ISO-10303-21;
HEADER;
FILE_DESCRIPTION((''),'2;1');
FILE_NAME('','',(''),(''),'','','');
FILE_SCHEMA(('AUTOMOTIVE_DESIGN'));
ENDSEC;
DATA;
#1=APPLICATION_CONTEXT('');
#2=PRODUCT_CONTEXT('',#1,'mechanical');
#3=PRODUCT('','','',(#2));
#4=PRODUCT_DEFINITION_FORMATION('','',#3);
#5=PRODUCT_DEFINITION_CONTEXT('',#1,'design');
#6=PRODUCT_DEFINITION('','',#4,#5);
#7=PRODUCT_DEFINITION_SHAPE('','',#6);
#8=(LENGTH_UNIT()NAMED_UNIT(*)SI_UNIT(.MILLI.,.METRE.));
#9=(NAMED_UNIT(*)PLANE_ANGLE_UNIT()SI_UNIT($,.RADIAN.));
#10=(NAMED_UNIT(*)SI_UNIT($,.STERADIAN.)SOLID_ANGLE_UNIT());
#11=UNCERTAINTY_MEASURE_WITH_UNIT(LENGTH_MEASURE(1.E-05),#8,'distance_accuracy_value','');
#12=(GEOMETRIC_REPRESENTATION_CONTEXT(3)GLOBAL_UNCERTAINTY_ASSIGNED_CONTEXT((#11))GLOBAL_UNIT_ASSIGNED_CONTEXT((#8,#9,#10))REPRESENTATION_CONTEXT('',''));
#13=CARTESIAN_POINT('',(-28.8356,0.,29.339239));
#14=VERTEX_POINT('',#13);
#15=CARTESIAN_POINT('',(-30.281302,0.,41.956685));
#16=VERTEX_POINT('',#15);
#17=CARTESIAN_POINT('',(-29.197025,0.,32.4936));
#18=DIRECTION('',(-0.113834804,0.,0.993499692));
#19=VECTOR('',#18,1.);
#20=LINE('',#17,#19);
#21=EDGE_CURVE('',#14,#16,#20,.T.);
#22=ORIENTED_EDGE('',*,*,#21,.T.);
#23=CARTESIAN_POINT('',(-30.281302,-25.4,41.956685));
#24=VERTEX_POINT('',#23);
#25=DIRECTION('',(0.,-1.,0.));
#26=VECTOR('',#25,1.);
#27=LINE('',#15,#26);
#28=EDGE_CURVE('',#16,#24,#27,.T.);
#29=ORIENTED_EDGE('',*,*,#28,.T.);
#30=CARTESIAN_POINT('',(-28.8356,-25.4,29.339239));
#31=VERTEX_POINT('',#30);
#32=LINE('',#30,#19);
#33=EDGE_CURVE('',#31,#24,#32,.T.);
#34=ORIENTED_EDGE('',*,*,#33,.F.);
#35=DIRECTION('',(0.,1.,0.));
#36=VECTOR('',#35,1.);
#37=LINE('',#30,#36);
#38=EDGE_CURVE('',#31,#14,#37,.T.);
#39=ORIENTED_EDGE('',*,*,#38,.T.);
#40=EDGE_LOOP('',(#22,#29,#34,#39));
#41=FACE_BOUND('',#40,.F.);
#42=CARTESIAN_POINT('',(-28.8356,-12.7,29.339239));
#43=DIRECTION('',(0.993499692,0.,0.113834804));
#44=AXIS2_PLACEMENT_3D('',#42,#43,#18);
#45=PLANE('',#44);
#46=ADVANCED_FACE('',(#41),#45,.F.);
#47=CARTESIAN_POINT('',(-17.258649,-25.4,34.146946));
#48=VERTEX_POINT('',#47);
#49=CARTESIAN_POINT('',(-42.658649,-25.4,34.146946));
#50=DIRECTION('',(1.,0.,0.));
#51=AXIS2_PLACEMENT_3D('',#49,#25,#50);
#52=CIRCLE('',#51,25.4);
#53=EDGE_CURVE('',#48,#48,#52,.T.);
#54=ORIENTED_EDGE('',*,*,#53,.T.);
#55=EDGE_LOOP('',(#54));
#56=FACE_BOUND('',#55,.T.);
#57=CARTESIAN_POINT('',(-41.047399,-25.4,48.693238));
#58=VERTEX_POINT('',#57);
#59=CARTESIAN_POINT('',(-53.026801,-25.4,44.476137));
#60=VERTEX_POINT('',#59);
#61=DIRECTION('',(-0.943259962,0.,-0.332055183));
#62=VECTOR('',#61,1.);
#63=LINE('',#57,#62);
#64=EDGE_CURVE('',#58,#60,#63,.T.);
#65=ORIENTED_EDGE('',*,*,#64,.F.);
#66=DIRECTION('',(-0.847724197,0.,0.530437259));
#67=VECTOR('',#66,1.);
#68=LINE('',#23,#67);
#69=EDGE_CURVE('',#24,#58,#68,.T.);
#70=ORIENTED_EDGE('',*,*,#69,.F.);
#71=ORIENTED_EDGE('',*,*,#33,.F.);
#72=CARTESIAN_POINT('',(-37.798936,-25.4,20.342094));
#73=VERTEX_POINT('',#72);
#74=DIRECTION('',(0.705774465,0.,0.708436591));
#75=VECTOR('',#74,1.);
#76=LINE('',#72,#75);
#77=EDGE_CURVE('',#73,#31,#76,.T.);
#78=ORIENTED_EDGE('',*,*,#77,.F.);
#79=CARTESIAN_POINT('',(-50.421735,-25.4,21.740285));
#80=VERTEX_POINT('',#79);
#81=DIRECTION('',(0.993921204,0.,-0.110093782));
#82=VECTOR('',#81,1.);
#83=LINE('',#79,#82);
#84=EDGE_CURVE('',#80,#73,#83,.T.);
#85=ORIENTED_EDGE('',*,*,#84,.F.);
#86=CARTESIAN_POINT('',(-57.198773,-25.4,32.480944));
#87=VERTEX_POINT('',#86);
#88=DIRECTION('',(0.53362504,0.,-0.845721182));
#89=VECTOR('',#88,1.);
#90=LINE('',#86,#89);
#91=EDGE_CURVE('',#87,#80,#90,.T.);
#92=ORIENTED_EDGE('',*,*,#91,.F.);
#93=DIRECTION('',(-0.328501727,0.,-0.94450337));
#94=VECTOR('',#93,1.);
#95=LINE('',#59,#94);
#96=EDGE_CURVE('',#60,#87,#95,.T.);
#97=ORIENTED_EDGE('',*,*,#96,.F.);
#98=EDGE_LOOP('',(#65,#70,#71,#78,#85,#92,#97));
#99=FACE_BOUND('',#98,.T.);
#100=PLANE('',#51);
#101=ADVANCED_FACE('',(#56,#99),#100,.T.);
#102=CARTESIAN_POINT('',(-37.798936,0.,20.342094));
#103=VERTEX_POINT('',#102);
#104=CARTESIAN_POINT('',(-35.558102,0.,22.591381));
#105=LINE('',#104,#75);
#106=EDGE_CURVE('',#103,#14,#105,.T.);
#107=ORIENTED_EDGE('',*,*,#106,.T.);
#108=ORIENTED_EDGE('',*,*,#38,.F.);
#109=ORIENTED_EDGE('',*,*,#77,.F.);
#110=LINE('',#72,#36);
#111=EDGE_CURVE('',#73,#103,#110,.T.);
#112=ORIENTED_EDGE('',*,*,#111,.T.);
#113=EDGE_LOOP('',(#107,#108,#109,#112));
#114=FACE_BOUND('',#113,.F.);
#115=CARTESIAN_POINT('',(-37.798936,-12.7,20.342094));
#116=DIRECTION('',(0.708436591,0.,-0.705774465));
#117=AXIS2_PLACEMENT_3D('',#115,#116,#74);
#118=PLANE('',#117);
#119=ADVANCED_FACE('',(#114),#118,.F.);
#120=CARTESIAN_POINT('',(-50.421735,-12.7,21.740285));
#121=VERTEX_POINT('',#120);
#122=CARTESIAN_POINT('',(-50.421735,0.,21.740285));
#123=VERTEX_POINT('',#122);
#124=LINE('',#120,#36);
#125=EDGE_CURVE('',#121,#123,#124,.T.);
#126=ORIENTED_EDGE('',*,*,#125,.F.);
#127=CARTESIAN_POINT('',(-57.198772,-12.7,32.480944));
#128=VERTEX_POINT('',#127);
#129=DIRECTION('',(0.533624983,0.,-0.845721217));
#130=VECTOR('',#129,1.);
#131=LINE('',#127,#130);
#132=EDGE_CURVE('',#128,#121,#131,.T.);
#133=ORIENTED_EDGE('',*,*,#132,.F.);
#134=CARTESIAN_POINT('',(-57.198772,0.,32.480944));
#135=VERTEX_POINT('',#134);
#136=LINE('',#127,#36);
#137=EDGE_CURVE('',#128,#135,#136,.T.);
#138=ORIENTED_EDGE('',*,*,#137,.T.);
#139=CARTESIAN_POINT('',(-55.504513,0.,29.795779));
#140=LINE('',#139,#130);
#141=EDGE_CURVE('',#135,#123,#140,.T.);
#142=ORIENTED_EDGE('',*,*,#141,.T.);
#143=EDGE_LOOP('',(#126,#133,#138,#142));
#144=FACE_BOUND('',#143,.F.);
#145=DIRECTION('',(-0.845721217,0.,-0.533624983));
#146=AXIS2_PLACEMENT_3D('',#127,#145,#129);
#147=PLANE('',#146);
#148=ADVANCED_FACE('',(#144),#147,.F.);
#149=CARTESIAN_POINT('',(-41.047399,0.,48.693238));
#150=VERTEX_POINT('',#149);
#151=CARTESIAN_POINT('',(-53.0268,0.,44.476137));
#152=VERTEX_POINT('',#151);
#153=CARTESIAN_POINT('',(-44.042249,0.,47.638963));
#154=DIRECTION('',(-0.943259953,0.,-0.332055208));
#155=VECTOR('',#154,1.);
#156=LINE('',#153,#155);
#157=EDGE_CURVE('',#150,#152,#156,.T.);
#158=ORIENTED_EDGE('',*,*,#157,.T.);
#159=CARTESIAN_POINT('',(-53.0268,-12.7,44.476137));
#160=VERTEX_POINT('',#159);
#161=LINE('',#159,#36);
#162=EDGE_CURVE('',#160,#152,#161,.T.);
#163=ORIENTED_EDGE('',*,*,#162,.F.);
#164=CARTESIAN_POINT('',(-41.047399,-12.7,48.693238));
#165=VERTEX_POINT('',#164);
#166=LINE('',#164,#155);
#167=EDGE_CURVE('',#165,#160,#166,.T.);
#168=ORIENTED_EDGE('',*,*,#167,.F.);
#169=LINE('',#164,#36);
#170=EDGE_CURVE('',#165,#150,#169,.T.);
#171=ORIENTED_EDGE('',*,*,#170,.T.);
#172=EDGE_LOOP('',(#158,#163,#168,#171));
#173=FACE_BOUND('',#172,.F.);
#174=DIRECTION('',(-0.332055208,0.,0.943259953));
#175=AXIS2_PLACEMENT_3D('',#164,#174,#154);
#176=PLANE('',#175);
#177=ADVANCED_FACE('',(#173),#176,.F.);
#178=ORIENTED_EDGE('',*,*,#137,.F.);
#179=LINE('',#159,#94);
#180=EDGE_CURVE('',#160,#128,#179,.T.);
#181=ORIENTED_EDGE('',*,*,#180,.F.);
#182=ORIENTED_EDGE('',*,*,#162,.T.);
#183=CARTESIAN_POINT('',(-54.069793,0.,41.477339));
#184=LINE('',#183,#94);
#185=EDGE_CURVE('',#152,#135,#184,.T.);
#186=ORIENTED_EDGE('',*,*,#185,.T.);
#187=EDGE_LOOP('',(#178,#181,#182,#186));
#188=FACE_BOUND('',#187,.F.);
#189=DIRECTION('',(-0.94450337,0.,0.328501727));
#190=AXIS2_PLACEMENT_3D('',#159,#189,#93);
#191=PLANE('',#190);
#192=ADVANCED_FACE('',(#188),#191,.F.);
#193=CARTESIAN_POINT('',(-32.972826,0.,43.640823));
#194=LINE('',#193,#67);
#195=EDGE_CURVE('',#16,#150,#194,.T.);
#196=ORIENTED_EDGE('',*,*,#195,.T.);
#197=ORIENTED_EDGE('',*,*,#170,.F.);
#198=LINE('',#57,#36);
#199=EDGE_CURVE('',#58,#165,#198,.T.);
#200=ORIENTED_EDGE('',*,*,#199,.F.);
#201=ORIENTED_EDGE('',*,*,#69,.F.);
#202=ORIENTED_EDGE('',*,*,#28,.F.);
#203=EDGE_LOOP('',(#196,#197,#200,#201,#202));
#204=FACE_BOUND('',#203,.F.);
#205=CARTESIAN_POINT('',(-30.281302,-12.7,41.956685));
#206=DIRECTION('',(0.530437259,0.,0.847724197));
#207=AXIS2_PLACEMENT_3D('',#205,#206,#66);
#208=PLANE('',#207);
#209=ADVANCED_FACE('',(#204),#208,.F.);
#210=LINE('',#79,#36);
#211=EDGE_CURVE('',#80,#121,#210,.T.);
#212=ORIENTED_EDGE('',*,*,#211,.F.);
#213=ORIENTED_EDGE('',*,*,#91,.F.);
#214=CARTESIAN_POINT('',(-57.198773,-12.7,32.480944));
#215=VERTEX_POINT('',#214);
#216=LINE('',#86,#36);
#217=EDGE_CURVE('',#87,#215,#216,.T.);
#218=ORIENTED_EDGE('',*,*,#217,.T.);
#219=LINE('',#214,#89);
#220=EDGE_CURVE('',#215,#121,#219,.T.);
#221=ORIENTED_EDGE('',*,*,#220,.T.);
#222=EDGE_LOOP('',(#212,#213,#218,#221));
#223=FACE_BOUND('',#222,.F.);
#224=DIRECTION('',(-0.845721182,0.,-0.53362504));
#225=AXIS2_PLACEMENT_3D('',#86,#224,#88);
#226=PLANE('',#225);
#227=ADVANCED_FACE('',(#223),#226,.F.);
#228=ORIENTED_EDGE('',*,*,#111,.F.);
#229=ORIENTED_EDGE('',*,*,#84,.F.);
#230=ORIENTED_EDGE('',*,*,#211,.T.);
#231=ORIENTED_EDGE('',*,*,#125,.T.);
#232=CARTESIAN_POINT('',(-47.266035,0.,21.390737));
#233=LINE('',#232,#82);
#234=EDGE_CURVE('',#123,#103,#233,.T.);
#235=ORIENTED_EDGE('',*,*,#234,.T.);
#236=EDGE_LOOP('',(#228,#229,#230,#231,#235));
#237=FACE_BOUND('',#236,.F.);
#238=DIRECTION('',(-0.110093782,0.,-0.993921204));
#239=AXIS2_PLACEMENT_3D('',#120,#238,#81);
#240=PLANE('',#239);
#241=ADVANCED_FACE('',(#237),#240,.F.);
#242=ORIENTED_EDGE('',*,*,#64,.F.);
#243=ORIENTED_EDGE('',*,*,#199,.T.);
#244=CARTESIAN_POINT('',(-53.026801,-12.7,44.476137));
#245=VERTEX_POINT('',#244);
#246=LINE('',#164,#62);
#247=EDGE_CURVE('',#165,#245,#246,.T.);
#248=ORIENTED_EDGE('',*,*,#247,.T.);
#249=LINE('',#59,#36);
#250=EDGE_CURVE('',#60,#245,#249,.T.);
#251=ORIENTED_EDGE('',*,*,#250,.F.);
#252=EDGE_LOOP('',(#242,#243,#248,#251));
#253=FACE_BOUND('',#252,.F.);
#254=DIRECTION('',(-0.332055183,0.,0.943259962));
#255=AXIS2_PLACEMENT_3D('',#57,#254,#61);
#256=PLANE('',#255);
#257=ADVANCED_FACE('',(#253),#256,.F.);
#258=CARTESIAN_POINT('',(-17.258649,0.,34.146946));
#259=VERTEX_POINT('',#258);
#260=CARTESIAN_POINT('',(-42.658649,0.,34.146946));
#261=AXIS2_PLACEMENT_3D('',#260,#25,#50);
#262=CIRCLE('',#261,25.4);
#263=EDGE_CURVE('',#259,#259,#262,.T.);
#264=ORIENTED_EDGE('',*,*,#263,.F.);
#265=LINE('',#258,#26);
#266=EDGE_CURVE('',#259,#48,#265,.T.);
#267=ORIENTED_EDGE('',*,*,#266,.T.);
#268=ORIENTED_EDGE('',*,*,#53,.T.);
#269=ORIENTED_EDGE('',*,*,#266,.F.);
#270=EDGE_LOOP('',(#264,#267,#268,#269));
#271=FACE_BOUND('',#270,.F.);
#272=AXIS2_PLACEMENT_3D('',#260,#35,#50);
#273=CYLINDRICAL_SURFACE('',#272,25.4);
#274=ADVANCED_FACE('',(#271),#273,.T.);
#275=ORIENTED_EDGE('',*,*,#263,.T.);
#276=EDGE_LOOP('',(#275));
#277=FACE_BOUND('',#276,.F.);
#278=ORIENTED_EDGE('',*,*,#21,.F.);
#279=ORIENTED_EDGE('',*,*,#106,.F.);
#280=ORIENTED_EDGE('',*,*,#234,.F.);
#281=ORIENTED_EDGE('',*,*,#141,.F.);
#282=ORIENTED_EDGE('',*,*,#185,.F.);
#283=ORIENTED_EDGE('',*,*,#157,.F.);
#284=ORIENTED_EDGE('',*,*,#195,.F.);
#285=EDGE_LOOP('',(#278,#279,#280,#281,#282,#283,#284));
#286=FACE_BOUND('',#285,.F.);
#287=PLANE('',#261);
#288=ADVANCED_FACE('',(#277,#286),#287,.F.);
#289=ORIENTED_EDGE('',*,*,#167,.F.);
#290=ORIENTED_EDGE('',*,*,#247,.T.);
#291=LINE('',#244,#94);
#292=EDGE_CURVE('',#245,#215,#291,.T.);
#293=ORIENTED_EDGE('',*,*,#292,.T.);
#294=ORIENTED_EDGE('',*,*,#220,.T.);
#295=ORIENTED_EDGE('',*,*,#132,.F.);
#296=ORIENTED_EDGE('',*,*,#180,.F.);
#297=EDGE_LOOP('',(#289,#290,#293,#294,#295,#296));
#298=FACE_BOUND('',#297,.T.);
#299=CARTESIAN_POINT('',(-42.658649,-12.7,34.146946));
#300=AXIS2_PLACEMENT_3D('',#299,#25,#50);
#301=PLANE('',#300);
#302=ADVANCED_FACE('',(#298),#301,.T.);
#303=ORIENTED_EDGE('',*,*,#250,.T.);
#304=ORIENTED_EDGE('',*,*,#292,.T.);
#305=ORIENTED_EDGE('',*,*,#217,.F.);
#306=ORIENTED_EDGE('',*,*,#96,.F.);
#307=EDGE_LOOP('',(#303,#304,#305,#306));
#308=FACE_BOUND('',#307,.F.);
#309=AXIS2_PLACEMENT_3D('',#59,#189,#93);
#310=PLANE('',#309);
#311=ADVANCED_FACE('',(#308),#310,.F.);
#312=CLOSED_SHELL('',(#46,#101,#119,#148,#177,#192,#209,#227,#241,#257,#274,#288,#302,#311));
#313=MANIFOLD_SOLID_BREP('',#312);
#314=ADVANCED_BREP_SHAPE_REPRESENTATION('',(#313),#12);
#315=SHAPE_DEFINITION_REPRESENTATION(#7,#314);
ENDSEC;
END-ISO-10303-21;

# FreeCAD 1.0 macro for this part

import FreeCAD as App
import Part
import Sketcher
from FreeCAD import Vector
Q = App.Units.Quantity


def add_polygon(sketch, points):
    """Adds a closed chain of lines whose ends are joined by coincident constraints."""
    first, n = sketch.GeometryCount, len(points)
    for a, b in zip(points, points[1:] + points[:1]):
        sketch.addGeometry(Part.LineSegment(App.Vector(*a, 0), App.Vector(*b, 0)), False)
    for i in range(n):
        sketch.addConstraint(Sketcher.Constraint("Coincident", first + i, 2, first + (i + 1) % n, 1))

doc = App.newDocument("Part")
body = doc.addObject("PartDesign::Body", "Body")

# Sketch on XZ plane
sketch1 = doc.addObject("Sketcher::SketchObject", "Sketch")
body.addObject(sketch1)
sketch1.AttachmentSupport = (doc.XZ_Plane, [""])
sketch1.MapMode = "FlatFace"
sketch1.addGeometry(Part.Circle(Vector(-43, 34, 0), Vector(0, 0, 1), 25), False)
sketch1.addConstraint([
    Sketcher.Constraint("Diameter", 0, Q("2 in")),
    Sketcher.Constraint("DistanceX", 0, 3, -1, 1, Q("42.658649 mm")),
    Sketcher.Constraint("DistanceY", -1, 1, 0, 3, Q("34.146946 mm")),
])
pad1 = doc.addObject("PartDesign::Pad", "Pad")
body.addObject(pad1)
pad1.Profile = sketch1
pad1.Length = Q("1 in")

# Sketch on XZ plane
sketch2 = doc.addObject("Sketcher::SketchObject", "Sketch001")
body.addObject(sketch2)
sketch2.AttachmentSupport = (doc.XZ_Plane, [""])
sketch2.MapMode = "FlatFace"
sketch2.AttachmentOffset = App.Placement(Vector(0, 0, 1 * 25.4), App.Rotation())
add_polygon(sketch2, [(-53, 44), (-57, 32), (-50, 22), (-38, 20), (-29, 29), (-30, 42), (-41, 49)])  # lines 0-6
sketch2.addConstraint([
    Sketcher.Constraint("Equal", 0, 1),
    Sketcher.Constraint("Equal", 1, 2),
    Sketcher.Constraint("Equal", 2, 3),
    Sketcher.Constraint("Equal", 3, 4),
    Sketcher.Constraint("Equal", 4, 5),
    Sketcher.Constraint("Equal", 5, 6),
    Sketcher.Constraint("Distance", 0, Q("0.5 in")),
    Sketcher.Constraint("DistanceX", 3, 2, -1, 1, Q("28.8356 mm")),
    Sketcher.Constraint("DistanceX", 4, 2, -1, 1, Q("30.281302 mm")),
    Sketcher.Constraint("DistanceX", 5, 2, -1, 1, Q("41.047399 mm")),
    Sketcher.Constraint("DistanceX", 6, 2, -1, 1, Q("53.026801 mm")),
    Sketcher.Constraint("DistanceX", 1, 2, 2, 2, Q("12.622799 mm")),
    Sketcher.Constraint("DistanceY", 1, 2, 4, 2, Q("20.2164 mm")),
    Sketcher.Constraint("DistanceY", -1, 1, 3, 2, Q("29.339239 mm")),
])
pocket1 = doc.addObject("PartDesign::Pocket", "Pocket")
body.addObject(pocket1)
pocket1.Profile = sketch2
pocket1.Length = Q("0.5 in")

# Sketch on XZ plane
sketch3 = doc.addObject("Sketcher::SketchObject", "Sketch002")
body.addObject(sketch3)
sketch3.AttachmentSupport = (doc.XZ_Plane, [""])
sketch3.MapMode = "FlatFace"
sketch3.AttachmentOffset = App.Placement(Vector(0, 0, 0.5 * 25.4), App.Rotation())
add_polygon(sketch3, [(-30, 42), (-41, 49), (-53, 44), (-57, 32), (-50, 22), (-38, 20), (-29, 29)])  # lines 0-6
sketch3.addConstraint([
    Sketcher.Constraint("Equal", 0, 1),
    Sketcher.Constraint("Equal", 1, 2),
    Sketcher.Constraint("Equal", 2, 3),
    Sketcher.Constraint("Equal", 3, 4),
    Sketcher.Constraint("Equal", 4, 5),
    Sketcher.Constraint("Equal", 5, 6),
    Sketcher.Constraint("Distance", 0, Q("0.5 in")),
    Sketcher.Constraint("DistanceX", 0, 2, -1, 1, Q("41.047399 mm")),
    Sketcher.Constraint("DistanceX", 1, 2, -1, 1, Q("53.0268 mm")),
    Sketcher.Constraint("DistanceX", 5, 2, -1, 1, Q("28.8356 mm")),
    Sketcher.Constraint("DistanceX", 6, 2, -1, 1, Q("30.281302 mm")),
    Sketcher.Constraint("DistanceX", 3, 2, 4, 2, Q("12.622799 mm")),
    Sketcher.Constraint("DistanceX", 2, 2, -1, 1, Q("57.198772 mm")),
    Sketcher.Constraint("DistanceY", -1, 1, 5, 2, Q("29.339239 mm")),
])
pocket2 = doc.addObject("PartDesign::Pocket", "Pocket001")
body.addObject(pocket2)
pocket2.Profile = sketch3
pocket2.Length = Q("2 in")

doc.recompute()
